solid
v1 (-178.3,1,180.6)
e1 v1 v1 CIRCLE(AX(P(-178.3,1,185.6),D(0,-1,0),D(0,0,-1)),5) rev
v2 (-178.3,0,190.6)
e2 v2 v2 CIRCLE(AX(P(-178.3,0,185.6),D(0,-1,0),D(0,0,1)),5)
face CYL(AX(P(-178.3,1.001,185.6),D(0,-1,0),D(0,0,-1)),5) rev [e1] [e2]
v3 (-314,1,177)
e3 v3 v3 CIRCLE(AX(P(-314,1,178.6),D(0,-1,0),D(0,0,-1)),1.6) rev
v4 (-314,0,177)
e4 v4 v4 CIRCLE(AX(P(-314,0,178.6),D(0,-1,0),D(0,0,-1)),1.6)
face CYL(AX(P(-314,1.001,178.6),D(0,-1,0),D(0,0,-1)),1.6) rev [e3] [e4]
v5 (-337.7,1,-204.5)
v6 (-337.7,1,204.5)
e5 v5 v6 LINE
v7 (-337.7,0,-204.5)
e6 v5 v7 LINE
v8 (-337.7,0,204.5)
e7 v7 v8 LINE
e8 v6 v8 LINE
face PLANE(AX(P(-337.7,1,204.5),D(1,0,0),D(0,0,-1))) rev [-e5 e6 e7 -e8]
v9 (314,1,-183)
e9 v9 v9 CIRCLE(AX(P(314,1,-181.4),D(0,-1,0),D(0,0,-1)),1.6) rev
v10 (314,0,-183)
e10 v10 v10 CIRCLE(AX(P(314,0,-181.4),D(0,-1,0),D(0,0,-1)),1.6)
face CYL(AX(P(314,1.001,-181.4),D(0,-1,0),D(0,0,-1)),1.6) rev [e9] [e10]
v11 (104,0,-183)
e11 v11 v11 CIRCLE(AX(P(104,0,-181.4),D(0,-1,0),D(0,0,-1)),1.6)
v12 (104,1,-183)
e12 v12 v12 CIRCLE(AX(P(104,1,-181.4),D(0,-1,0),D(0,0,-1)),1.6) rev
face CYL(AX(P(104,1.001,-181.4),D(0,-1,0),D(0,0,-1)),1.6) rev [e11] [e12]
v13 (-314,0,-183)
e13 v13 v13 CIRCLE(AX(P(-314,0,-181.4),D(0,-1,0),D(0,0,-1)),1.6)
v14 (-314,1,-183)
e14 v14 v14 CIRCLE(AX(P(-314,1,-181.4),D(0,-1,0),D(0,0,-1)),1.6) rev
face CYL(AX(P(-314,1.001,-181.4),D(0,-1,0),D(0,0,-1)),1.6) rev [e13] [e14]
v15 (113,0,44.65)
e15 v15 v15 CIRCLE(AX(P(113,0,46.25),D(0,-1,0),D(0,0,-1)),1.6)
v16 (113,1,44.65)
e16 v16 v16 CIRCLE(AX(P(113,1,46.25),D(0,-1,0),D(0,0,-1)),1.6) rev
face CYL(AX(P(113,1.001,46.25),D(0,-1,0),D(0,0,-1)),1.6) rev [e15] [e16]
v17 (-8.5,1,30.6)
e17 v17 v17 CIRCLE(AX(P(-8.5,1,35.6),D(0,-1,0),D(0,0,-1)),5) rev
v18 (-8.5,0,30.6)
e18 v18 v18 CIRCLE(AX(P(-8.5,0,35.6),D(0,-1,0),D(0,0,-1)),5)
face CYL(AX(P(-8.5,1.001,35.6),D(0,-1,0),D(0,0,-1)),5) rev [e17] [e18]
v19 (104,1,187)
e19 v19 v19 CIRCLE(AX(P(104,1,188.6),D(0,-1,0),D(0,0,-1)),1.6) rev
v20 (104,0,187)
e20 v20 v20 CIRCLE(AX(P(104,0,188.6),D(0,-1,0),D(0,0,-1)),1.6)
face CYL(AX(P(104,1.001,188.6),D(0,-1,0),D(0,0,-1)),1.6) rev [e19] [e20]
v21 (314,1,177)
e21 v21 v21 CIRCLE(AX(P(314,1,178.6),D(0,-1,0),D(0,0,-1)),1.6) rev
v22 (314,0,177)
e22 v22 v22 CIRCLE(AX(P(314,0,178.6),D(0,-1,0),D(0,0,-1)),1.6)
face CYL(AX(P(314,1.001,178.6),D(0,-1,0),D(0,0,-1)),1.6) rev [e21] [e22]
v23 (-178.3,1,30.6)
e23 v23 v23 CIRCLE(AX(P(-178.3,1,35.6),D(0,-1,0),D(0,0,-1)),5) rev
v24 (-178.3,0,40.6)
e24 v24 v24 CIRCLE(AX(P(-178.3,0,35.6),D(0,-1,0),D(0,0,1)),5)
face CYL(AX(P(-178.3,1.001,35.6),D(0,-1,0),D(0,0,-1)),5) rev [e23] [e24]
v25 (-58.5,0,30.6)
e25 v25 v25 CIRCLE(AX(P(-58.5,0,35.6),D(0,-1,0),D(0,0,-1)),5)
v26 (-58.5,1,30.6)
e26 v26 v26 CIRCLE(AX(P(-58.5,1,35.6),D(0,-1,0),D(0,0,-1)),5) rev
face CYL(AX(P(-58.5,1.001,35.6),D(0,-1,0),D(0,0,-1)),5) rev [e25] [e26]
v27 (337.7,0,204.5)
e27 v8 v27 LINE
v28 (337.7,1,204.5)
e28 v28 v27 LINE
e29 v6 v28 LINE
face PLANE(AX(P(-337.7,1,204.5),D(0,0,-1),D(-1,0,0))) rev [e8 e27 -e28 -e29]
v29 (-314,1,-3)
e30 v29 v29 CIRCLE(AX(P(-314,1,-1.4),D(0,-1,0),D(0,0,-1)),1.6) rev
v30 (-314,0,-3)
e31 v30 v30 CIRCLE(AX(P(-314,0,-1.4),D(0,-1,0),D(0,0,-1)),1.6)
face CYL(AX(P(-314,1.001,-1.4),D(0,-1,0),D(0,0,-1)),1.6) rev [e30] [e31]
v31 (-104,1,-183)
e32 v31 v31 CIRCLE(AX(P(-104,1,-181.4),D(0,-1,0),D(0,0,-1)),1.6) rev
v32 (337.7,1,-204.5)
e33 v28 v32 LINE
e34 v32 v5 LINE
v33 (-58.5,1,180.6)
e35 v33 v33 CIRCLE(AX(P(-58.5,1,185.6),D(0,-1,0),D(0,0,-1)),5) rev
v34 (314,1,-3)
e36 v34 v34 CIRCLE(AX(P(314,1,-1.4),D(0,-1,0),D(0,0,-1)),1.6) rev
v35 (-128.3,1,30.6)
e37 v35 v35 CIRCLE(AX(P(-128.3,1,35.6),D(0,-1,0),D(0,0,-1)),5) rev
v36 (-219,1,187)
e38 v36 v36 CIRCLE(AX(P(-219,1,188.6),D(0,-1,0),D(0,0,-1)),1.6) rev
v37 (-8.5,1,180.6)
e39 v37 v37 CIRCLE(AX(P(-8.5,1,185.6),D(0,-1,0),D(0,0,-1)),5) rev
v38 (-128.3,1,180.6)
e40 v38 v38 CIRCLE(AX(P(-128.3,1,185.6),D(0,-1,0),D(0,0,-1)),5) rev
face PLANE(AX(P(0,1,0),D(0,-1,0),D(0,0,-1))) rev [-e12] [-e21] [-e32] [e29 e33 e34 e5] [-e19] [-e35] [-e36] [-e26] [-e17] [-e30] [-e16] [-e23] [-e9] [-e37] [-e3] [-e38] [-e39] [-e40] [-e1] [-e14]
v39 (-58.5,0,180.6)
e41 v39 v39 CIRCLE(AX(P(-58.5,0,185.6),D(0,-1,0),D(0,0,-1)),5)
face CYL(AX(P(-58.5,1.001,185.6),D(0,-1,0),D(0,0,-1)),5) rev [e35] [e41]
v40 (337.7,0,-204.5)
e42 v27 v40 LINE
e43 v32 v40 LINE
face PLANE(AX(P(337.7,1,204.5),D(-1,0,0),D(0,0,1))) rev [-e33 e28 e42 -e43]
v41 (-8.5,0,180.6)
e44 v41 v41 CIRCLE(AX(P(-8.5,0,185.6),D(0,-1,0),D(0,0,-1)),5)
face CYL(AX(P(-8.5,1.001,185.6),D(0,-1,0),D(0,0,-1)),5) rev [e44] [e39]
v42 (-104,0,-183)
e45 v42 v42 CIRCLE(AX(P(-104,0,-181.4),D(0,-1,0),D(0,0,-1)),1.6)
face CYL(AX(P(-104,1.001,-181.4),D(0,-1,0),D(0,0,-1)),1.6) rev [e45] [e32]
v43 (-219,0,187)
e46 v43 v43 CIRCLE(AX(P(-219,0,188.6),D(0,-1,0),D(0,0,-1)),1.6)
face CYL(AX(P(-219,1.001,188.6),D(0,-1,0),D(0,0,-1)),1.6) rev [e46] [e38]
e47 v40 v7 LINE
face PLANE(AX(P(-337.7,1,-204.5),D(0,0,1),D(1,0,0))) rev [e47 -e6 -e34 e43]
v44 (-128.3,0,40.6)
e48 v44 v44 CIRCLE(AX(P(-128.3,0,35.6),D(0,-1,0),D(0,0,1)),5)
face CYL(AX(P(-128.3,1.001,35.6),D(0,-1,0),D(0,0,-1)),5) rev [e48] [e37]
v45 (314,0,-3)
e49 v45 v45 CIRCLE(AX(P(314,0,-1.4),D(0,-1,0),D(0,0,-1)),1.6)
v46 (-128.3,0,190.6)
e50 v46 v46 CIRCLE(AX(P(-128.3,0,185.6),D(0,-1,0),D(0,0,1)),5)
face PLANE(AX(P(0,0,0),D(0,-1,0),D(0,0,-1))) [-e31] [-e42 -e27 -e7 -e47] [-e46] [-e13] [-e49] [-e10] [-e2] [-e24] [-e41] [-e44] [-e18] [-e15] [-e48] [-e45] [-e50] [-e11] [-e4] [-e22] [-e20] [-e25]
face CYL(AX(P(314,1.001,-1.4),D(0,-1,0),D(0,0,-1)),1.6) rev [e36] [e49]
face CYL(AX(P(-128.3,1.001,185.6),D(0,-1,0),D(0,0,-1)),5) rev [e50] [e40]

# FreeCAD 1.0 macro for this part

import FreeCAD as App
import Part
import Sketcher
from FreeCAD import Vector
Q = App.Units.Quantity

doc = App.newDocument("Part")
body = doc.addObject("PartDesign::Body", "Body")

# Sketch on XZ plane
sketch1 = body.newObject("Sketcher::SketchObject", "Sketch")
sketch1.AttachmentSupport = (doc.getObject("XZ_Plane"), [""])
sketch1.MapMode = "FlatFace"
sketch1.addGeometry(Part.LineSegment(Vector(-337.7, -204.5, 0), Vector(-337.7, 204.5, 0)), False)
sketch1.addGeometry(Part.LineSegment(Vector(-337.7, 204.5, 0), Vector(337.7, 204.5, 0)), False)
sketch1.addGeometry(Part.LineSegment(Vector(337.7, 204.5, 0), Vector(337.7, -204.5, 0)), False)
sketch1.addGeometry(Part.LineSegment(Vector(337.7, -204.5, 0), Vector(-337.7, -204.5, 0)), False)
sketch1.addConstraint(Sketcher.Constraint("Coincident", 0, 2, 1, 1))
sketch1.addConstraint(Sketcher.Constraint("Coincident", 1, 2, 2, 1))
sketch1.addConstraint(Sketcher.Constraint("Coincident", 2, 2, 3, 1))
sketch1.addConstraint(Sketcher.Constraint("Coincident", 3, 2, 0, 1))
sketch1.addConstraint(Sketcher.Constraint("Vertical", 0))
sketch1.addConstraint(Sketcher.Constraint("Horizontal", 1))
sketch1.addConstraint(Sketcher.Constraint("Vertical", 2))
sketch1.addConstraint(Sketcher.Constraint("Horizontal", 3))
sketch1.addConstraint(Sketcher.Constraint("Symmetric", 0, 2, 2, 2, -1, 1))
sketch1.addConstraint(Sketcher.Constraint("DistanceY", 0, 1, 0, 2, Q("409 mm")))
sketch1.addConstraint(Sketcher.Constraint("DistanceX", 1, 1, 1, 2, Q("675.4 mm")))
pad1 = body.newObject("PartDesign::Pad", "Pad")
pad1.Profile = sketch1
pad1.Length = 1
pad1.Reversed = True

# Sketch on XZ plane
sketch2 = body.newObject("Sketcher::SketchObject", "Sketch001")
sketch2.AttachmentSupport = (doc.getObject("XZ_Plane"), [""])
sketch2.MapMode = "FlatFace"
sketch2.addGeometry(Part.Circle(Vector(-314, 178.6, 0), Vector(0, 0, 1), 1.6), False)
sketch2.addConstraint(Sketcher.Constraint("Diameter", 0, Q("3.2 mm")))
sketch2.addConstraint(Sketcher.Constraint("DistanceX", 0, 3, -1, 1, Q("314 mm")))
sketch2.addConstraint(Sketcher.Constraint("DistanceY", -1, 1, 0, 3, Q("178.6 mm")))
pocket1 = body.newObject("PartDesign::Pocket", "Pocket")
pocket1.Profile = sketch2
pocket1.Type = "UpToFirst"

# Sketch on XZ plane
sketch3 = body.newObject("Sketcher::SketchObject", "Sketch002")
sketch3.AttachmentSupport = (doc.getObject("XZ_Plane"), [""])
sketch3.MapMode = "FlatFace"
sketch3.addGeometry(Part.Circle(Vector(-314, -181.4, 0), Vector(0, 0, 1), 1.6), False)
sketch3.addConstraint(Sketcher.Constraint("Diameter", 0, Q("3.2 mm")))
sketch3.addConstraint(Sketcher.Constraint("DistanceX", 0, 3, -1, 1, Q("314 mm")))
sketch3.addConstraint(Sketcher.Constraint("DistanceY", 0, 3, -1, 1, Q("181.4 mm")))
pocket2 = body.newObject("PartDesign::Pocket", "Pocket001")
pocket2.Profile = sketch3
pocket2.Type = "UpToFirst"

# Sketch on XZ plane
sketch4 = body.newObject("Sketcher::SketchObject", "Sketch003")
sketch4.AttachmentSupport = (doc.getObject("XZ_Plane"), [""])
sketch4.MapMode = "FlatFace"
sketch4.addGeometry(Part.Circle(Vector(314, -181.4, 0), Vector(0, 0, 1), 1.6), False)
sketch4.addConstraint(Sketcher.Constraint("Diameter", 0, Q("3.2 mm")))
sketch4.addConstraint(Sketcher.Constraint("DistanceX", -1, 1, 0, 3, Q("314 mm")))
sketch4.addConstraint(Sketcher.Constraint("DistanceY", 0, 3, -1, 1, Q("181.4 mm")))
pocket3 = body.newObject("PartDesign::Pocket", "Pocket002")
pocket3.Profile = sketch4
pocket3.Type = "UpToFirst"

# Sketch on XZ plane
sketch5 = body.newObject("Sketcher::SketchObject", "Sketch004")
sketch5.AttachmentSupport = (doc.getObject("XZ_Plane"), [""])
sketch5.MapMode = "FlatFace"
sketch5.addGeometry(Part.Circle(Vector(314, 178.6, 0), Vector(0, 0, 1), 1.6), False)
sketch5.addConstraint(Sketcher.Constraint("Diameter", 0, Q("3.2 mm")))
sketch5.addConstraint(Sketcher.Constraint("DistanceX", -1, 1, 0, 3, Q("314 mm")))
sketch5.addConstraint(Sketcher.Constraint("DistanceY", -1, 1, 0, 3, Q("178.6 mm")))
pocket4 = body.newObject("PartDesign::Pocket", "Pocket003")
pocket4.Profile = sketch5
pocket4.Type = "UpToFirst"

# Sketch on XZ plane
sketch6 = body.newObject("Sketcher::SketchObject", "Sketch005")
sketch6.AttachmentSupport = (doc.getObject("XZ_Plane"), [""])
sketch6.MapMode = "FlatFace"
sketch6.addGeometry(Part.Circle(Vector(113, 46.25, 0), Vector(0, 0, 1), 1.6), False)
sketch6.addConstraint(Sketcher.Constraint("Diameter", 0, Q("3.2 mm")))
sketch6.addConstraint(Sketcher.Constraint("DistanceX", -1, 1, 0, 3, Q("113 mm")))
sketch6.addConstraint(Sketcher.Constraint("DistanceY", -1, 1, 0, 3, Q("46.25 mm")))
pocket5 = body.newObject("PartDesign::Pocket", "Pocket004")
pocket5.Profile = sketch6
pocket5.Type = "UpToFirst"

# Sketch on XZ plane
sketch7 = body.newObject("Sketcher::SketchObject", "Sketch006")
sketch7.AttachmentSupport = (doc.getObject("XZ_Plane"), [""])
sketch7.MapMode = "FlatFace"
sketch7.addGeometry(Part.Circle(Vector(-58.5, 35.6, 0), Vector(0, 0, 1), 5), False)
sketch7.addConstraint(Sketcher.Constraint("Diameter", 0, Q("10 mm")))
sketch7.addConstraint(Sketcher.Constraint("DistanceX", 0, 3, -1, 1, Q("58.5 mm")))
sketch7.addConstraint(Sketcher.Constraint("DistanceY", -1, 1, 0, 3, Q("35.6 mm")))
pocket6 = body.newObject("PartDesign::Pocket", "Pocket005")
pocket6.Profile = sketch7
pocket6.Type = "UpToFirst"

# Sketch on XZ plane
sketch8 = body.newObject("Sketcher::SketchObject", "Sketch007")
sketch8.AttachmentSupport = (doc.getObject("XZ_Plane"), [""])
sketch8.MapMode = "FlatFace"
sketch8.addGeometry(Part.Circle(Vector(-8.5, 35.6, 0), Vector(0, 0, 1), 5), False)
sketch8.addConstraint(Sketcher.Constraint("Diameter", 0, Q("10 mm")))
sketch8.addConstraint(Sketcher.Constraint("DistanceX", 0, 3, -1, 1, Q("8.5 mm")))
sketch8.addConstraint(Sketcher.Constraint("DistanceY", -1, 1, 0, 3, Q("35.6 mm")))
pocket7 = body.newObject("PartDesign::Pocket", "Pocket006")
pocket7.Profile = sketch8
pocket7.Type = "UpToFirst"

# Sketch on XZ plane
sketch9 = body.newObject("Sketcher::SketchObject", "Sketch008")
sketch9.AttachmentSupport = (doc.getObject("XZ_Plane"), [""])
sketch9.MapMode = "FlatFace"
sketch9.addGeometry(Part.Circle(Vector(-8.5, 185.6, 0), Vector(0, 0, 1), 5), False)
sketch9.addConstraint(Sketcher.Constraint("Diameter", 0, Q("10 mm")))
sketch9.addConstraint(Sketcher.Constraint("DistanceX", 0, 3, -1, 1, Q("8.5 mm")))
sketch9.addConstraint(Sketcher.Constraint("DistanceY", -1, 1, 0, 3, Q("185.6 mm")))
pocket8 = body.newObject("PartDesign::Pocket", "Pocket007")
pocket8.Profile = sketch9
pocket8.Type = "UpToFirst"

# Sketch on XZ plane
sketch10 = body.newObject("Sketcher::SketchObject", "Sketch009")
sketch10.AttachmentSupport = (doc.getObject("XZ_Plane"), [""])
sketch10.MapMode = "FlatFace"
sketch10.addGeometry(Part.Circle(Vector(-58.5, 185.6, 0), Vector(0, 0, 1), 5), False)
sketch10.addConstraint(Sketcher.Constraint("Diameter", 0, Q("10 mm")))
sketch10.addConstraint(Sketcher.Constraint("DistanceX", 0, 3, -1, 1, Q("58.5 mm")))
sketch10.addConstraint(Sketcher.Constraint("DistanceY", -1, 1, 0, 3, Q("185.6 mm")))
pocket9 = body.newObject("PartDesign::Pocket", "Pocket008")
pocket9.Profile = sketch10
pocket9.Type = "UpToFirst"

# Sketch on XZ plane
sketch11 = body.newObject("Sketcher::SketchObject", "Sketch010")
sketch11.AttachmentSupport = (doc.getObject("XZ_Plane"), [""])
sketch11.MapMode = "FlatFace"
sketch11.addGeometry(Part.Circle(Vector(-128.3, 185.6, 0), Vector(0, 0, 1), 5), False)
sketch11.addConstraint(Sketcher.Constraint("Diameter", 0, Q("10 mm")))
sketch11.addConstraint(Sketcher.Constraint("DistanceX", 0, 3, -1, 1, Q("128.3 mm")))
sketch11.addConstraint(Sketcher.Constraint("DistanceY", -1, 1, 0, 3, Q("185.6 mm")))
pocket10 = body.newObject("PartDesign::Pocket", "Pocket009")
pocket10.Profile = sketch11
pocket10.Type = "UpToFirst"

# Sketch on XZ plane
sketch12 = body.newObject("Sketcher::SketchObject", "Sketch011")
sketch12.AttachmentSupport = (doc.getObject("XZ_Plane"), [""])
sketch12.MapMode = "FlatFace"
sketch12.addGeometry(Part.Circle(Vector(-178.3, 185.6, 0), Vector(0, 0, 1), 5), False)
sketch12.addConstraint(Sketcher.Constraint("Diameter", 0, Q("10 mm")))
sketch12.addConstraint(Sketcher.Constraint("DistanceX", 0, 3, -1, 1, Q("178.3 mm")))
sketch12.addConstraint(Sketcher.Constraint("DistanceY", -1, 1, 0, 3, Q("185.6 mm")))
pocket11 = body.newObject("PartDesign::Pocket", "Pocket010")
pocket11.Profile = sketch12
pocket11.Type = "UpToFirst"

# Sketch on XZ plane
sketch13 = body.newObject("Sketcher::SketchObject", "Sketch012")
sketch13.AttachmentSupport = (doc.getObject("XZ_Plane"), [""])
sketch13.MapMode = "FlatFace"
sketch13.addGeometry(Part.Circle(Vector(-178.3, 35.6, 0), Vector(0, 0, 1), 5), False)
sketch13.addConstraint(Sketcher.Constraint("Diameter", 0, Q("10 mm")))
sketch13.addConstraint(Sketcher.Constraint("DistanceX", 0, 3, -1, 1, Q("178.3 mm")))
sketch13.addConstraint(Sketcher.Constraint("DistanceY", -1, 1, 0, 3, Q("35.6 mm")))
pocket12 = body.newObject("PartDesign::Pocket", "Pocket011")
pocket12.Profile = sketch13
pocket12.Type = "UpToFirst"

# Sketch on XZ plane
sketch14 = body.newObject("Sketcher::SketchObject", "Sketch013")
sketch14.AttachmentSupport = (doc.getObject("XZ_Plane"), [""])
sketch14.MapMode = "FlatFace"
sketch14.addGeometry(Part.Circle(Vector(-128.3, 35.6, 0), Vector(0, 0, 1), 5), False)
sketch14.addConstraint(Sketcher.Constraint("Diameter", 0, Q("10 mm")))
sketch14.addConstraint(Sketcher.Constraint("DistanceX", 0, 3, -1, 1, Q("128.3 mm")))
sketch14.addConstraint(Sketcher.Constraint("DistanceY", -1, 1, 0, 3, Q("35.6 mm")))
pocket13 = body.newObject("PartDesign::Pocket", "Pocket012")
pocket13.Profile = sketch14
pocket13.Type = "UpToFirst"

# Sketch on XZ plane
sketch15 = body.newObject("Sketcher::SketchObject", "Sketch014")
sketch15.AttachmentSupport = (doc.getObject("XZ_Plane"), [""])
sketch15.MapMode = "FlatFace"
sketch15.addGeometry(Part.Circle(Vector(-314, -1.4, 0), Vector(0, 0, 1), 1.6), False)
sketch15.addConstraint(Sketcher.Constraint("Diameter", 0, Q("3.2 mm")))
sketch15.addConstraint(Sketcher.Constraint("DistanceX", 0, 3, -1, 1, Q("314 mm")))
sketch15.addConstraint(Sketcher.Constraint("DistanceY", 0, 3, -1, 1, Q("1.4 mm")))
pocket14 = body.newObject("PartDesign::Pocket", "Pocket013")
pocket14.Profile = sketch15
pocket14.Type = "UpToFirst"

# Sketch on XZ plane
sketch16 = body.newObject("Sketcher::SketchObject", "Sketch015")
sketch16.AttachmentSupport = (doc.getObject("XZ_Plane"), [""])
sketch16.MapMode = "FlatFace"
sketch16.addGeometry(Part.Circle(Vector(314, -1.4, 0), Vector(0, 0, 1), 1.6), False)
sketch16.addConstraint(Sketcher.Constraint("Diameter", 0, Q("3.2 mm")))
sketch16.addConstraint(Sketcher.Constraint("DistanceX", -1, 1, 0, 3, Q("314 mm")))
sketch16.addConstraint(Sketcher.Constraint("DistanceY", 0, 3, -1, 1, Q("1.4 mm")))
pocket15 = body.newObject("PartDesign::Pocket", "Pocket014")
pocket15.Profile = sketch16
pocket15.Type = "UpToFirst"

# Sketch on XZ plane
sketch17 = body.newObject("Sketcher::SketchObject", "Sketch016")
sketch17.AttachmentSupport = (doc.getObject("XZ_Plane"), [""])
sketch17.MapMode = "FlatFace"
sketch17.addGeometry(Part.Circle(Vector(-219, 188.6, 0), Vector(0, 0, 1), 1.6), False)
sketch17.addConstraint(Sketcher.Constraint("Diameter", 0, Q("3.2 mm")))
sketch17.addConstraint(Sketcher.Constraint("DistanceX", 0, 3, -1, 1, Q("219 mm")))
sketch17.addConstraint(Sketcher.Constraint("DistanceY", -1, 1, 0, 3, Q("188.6 mm")))
pocket16 = body.newObject("PartDesign::Pocket", "Pocket015")
pocket16.Profile = sketch17
pocket16.Type = "UpToFirst"

# Sketch on XZ plane
sketch18 = body.newObject("Sketcher::SketchObject", "Sketch017")
sketch18.AttachmentSupport = (doc.getObject("XZ_Plane"), [""])
sketch18.MapMode = "FlatFace"
sketch18.addGeometry(Part.Circle(Vector(104, -181.4, 0), Vector(0, 0, 1), 1.6), False)
sketch18.addConstraint(Sketcher.Constraint("Diameter", 0, Q("3.2 mm")))
sketch18.addConstraint(Sketcher.Constraint("DistanceX", -1, 1, 0, 3, Q("104 mm")))
sketch18.addConstraint(Sketcher.Constraint("DistanceY", 0, 3, -1, 1, Q("181.4 mm")))
pocket17 = body.newObject("PartDesign::Pocket", "Pocket016")
pocket17.Profile = sketch18
pocket17.Type = "UpToFirst"

# Sketch on XZ plane
sketch19 = body.newObject("Sketcher::SketchObject", "Sketch018")
sketch19.AttachmentSupport = (doc.getObject("XZ_Plane"), [""])
sketch19.MapMode = "FlatFace"
sketch19.addGeometry(Part.Circle(Vector(104, 188.6, 0), Vector(0, 0, 1), 1.6), False)
sketch19.addConstraint(Sketcher.Constraint("Diameter", 0, Q("3.2 mm")))
sketch19.addConstraint(Sketcher.Constraint("DistanceX", -1, 1, 0, 3, Q("104 mm")))
sketch19.addConstraint(Sketcher.Constraint("DistanceY", -1, 1, 0, 3, Q("188.6 mm")))
pocket18 = body.newObject("PartDesign::Pocket", "Pocket017")
pocket18.Profile = sketch19
pocket18.Type = "UpToFirst"

# Sketch on XZ plane
sketch20 = body.newObject("Sketcher::SketchObject", "Sketch019")
sketch20.AttachmentSupport = (doc.getObject("XZ_Plane"), [""])
sketch20.MapMode = "FlatFace"
sketch20.addGeometry(Part.Circle(Vector(-104, -181.4, 0), Vector(0, 0, 1), 1.6), False)
sketch20.addConstraint(Sketcher.Constraint("Diameter", 0, Q("3.2 mm")))
sketch20.addConstraint(Sketcher.Constraint("DistanceX", 0, 3, -1, 1, Q("104 mm")))
sketch20.addConstraint(Sketcher.Constraint("DistanceY", 0, 3, -1, 1, Q("181.4 mm")))
pocket19 = body.newObject("PartDesign::Pocket", "Pocket018")
pocket19.Profile = sketch20
pocket19.Type = "UpToFirst"

doc.recompute()
